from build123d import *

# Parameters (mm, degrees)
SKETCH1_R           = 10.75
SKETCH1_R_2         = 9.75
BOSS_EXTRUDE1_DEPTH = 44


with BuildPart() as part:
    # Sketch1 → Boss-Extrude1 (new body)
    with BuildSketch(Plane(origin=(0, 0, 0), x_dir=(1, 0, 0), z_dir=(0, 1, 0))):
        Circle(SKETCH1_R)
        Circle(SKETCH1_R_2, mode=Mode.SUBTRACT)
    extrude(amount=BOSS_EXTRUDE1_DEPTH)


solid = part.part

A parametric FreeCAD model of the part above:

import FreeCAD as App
import Part
import Sketcher
Q = App.Units.Quantity

doc = App.newDocument("Part")
params = doc.addObject("Spreadsheet::Sheet", "Params")
for row, (alias, value) in enumerate([
    ("sketch1_diameter", "21.5 mm"),
    ("sketch1_diameter2", "19.5 mm"),
    ("pad1_length", "44 mm"),
], start=1):
    params.set(f"A{row}", alias)
    params.set(f"B{row}", "=" + value)
    params.setAlias(f"B{row}", alias)

body = doc.addObject("PartDesign::Body", "Body")

# Sketch on XZ plane
sketch1 = body.newObject("Sketcher::SketchObject", "Sketch")
sketch1.AttachmentSupport = (doc.getObject("XZ_Plane"), [""])
sketch1.MapMode = "FlatFace"
sketch1.addGeometry(Part.Circle(App.Vector(0, 0, 0), App.Vector(0, 0, 1), 10.75), False)
sketch1.addGeometry(Part.Circle(App.Vector(0, 0, 0), App.Vector(0, 0, 1), 9.75), False)
sketch1.addConstraint(Sketcher.Constraint("Coincident", 0, 3, -1, 1))
sketch1.addConstraint(Sketcher.Constraint("Coincident", 1, 3, -1, 1))
sketch1.addConstraint(Sketcher.Constraint("Diameter", 0, Q("21.5 mm")))
sketch1.addConstraint(Sketcher.Constraint("Diameter", 1, Q("19.5 mm")))
sketch1.setExpression("Constraints[2]", "Params.sketch1_diameter")
sketch1.setExpression("Constraints[3]", "Params.sketch1_diameter2")
pad1 = body.newObject("PartDesign::Pad", "Pad")
pad1.Profile = sketch1
pad1.setExpression("Length", "Params.pad1_length")
pad1.Reversed = True

doc.recompute()
